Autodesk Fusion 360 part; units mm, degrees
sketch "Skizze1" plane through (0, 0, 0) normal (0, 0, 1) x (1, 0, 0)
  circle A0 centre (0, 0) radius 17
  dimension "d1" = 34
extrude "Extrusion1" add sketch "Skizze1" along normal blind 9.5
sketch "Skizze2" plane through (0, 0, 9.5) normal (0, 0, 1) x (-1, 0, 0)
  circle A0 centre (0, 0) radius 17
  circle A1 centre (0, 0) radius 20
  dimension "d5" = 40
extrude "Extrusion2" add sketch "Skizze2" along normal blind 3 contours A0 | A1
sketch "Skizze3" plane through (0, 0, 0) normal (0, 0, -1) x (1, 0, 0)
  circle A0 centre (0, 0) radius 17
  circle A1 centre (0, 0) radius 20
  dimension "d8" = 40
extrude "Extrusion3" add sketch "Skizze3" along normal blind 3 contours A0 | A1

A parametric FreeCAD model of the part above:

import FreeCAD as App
import Part
import Sketcher

V = App.Vector
Q = App.Units.Quantity

doc = App.newDocument("Part")
body = doc.addObject("PartDesign::Body", "Body")

sketch1 = body.newObject("Sketcher::SketchObject", "Sketch")
sketch1.AttachmentSupport = (doc.getObject("XY_Plane"), [""])
sketch1.MapMode = "FlatFace"
sketch1.addGeometry(Part.Circle(V(0, 0, 0), V(0, 0, 1), 17), False)
sketch1.addConstraint(Sketcher.Constraint("Coincident", 0, 3, -1, 1))
sketch1.addConstraint(Sketcher.Constraint("Diameter", 0, Q("34 mm")))
pad1 = body.newObject("PartDesign::Pad", "Pad")
pad1.Profile = sketch1
pad1.Length = 9.5

sketch2 = body.newObject("Sketcher::SketchObject", "Sketch001")
sketch2.AttachmentSupport = (doc.getObject("XY_Plane"), [""])
sketch2.MapMode = "FlatFace"
sketch2.AttachmentOffset = App.Placement(V(0, 0, 9.5), App.Rotation())
sketch2.addGeometry(Part.Circle(V(0, 0, 0), V(0, 0, 1), 20), False)
sketch2.addConstraint(Sketcher.Constraint("Coincident", 0, 3, -1, 1))
sketch2.addConstraint(Sketcher.Constraint("Diameter", 0, Q("40 mm")))
pad2 = body.newObject("PartDesign::Pad", "Pad001")
pad2.Profile = sketch2
pad2.Length = 3

sketch3 = body.newObject("Sketcher::SketchObject", "Sketch002")
sketch3.AttachmentSupport = (doc.getObject("XY_Plane"), [""])
sketch3.MapMode = "FlatFace"
sketch3.addGeometry(Part.Circle(V(0, 0, 0), V(0, 0, 1), 20), False)
sketch3.addConstraint(Sketcher.Constraint("Coincident", 0, 3, -1, 1))
sketch3.addConstraint(Sketcher.Constraint("Diameter", 0, Q("40 mm")))
pad3 = body.newObject("PartDesign::Pad", "Pad002")
pad3.Profile = sketch3
pad3.Length = 3
pad3.Reversed = True

doc.recompute()
